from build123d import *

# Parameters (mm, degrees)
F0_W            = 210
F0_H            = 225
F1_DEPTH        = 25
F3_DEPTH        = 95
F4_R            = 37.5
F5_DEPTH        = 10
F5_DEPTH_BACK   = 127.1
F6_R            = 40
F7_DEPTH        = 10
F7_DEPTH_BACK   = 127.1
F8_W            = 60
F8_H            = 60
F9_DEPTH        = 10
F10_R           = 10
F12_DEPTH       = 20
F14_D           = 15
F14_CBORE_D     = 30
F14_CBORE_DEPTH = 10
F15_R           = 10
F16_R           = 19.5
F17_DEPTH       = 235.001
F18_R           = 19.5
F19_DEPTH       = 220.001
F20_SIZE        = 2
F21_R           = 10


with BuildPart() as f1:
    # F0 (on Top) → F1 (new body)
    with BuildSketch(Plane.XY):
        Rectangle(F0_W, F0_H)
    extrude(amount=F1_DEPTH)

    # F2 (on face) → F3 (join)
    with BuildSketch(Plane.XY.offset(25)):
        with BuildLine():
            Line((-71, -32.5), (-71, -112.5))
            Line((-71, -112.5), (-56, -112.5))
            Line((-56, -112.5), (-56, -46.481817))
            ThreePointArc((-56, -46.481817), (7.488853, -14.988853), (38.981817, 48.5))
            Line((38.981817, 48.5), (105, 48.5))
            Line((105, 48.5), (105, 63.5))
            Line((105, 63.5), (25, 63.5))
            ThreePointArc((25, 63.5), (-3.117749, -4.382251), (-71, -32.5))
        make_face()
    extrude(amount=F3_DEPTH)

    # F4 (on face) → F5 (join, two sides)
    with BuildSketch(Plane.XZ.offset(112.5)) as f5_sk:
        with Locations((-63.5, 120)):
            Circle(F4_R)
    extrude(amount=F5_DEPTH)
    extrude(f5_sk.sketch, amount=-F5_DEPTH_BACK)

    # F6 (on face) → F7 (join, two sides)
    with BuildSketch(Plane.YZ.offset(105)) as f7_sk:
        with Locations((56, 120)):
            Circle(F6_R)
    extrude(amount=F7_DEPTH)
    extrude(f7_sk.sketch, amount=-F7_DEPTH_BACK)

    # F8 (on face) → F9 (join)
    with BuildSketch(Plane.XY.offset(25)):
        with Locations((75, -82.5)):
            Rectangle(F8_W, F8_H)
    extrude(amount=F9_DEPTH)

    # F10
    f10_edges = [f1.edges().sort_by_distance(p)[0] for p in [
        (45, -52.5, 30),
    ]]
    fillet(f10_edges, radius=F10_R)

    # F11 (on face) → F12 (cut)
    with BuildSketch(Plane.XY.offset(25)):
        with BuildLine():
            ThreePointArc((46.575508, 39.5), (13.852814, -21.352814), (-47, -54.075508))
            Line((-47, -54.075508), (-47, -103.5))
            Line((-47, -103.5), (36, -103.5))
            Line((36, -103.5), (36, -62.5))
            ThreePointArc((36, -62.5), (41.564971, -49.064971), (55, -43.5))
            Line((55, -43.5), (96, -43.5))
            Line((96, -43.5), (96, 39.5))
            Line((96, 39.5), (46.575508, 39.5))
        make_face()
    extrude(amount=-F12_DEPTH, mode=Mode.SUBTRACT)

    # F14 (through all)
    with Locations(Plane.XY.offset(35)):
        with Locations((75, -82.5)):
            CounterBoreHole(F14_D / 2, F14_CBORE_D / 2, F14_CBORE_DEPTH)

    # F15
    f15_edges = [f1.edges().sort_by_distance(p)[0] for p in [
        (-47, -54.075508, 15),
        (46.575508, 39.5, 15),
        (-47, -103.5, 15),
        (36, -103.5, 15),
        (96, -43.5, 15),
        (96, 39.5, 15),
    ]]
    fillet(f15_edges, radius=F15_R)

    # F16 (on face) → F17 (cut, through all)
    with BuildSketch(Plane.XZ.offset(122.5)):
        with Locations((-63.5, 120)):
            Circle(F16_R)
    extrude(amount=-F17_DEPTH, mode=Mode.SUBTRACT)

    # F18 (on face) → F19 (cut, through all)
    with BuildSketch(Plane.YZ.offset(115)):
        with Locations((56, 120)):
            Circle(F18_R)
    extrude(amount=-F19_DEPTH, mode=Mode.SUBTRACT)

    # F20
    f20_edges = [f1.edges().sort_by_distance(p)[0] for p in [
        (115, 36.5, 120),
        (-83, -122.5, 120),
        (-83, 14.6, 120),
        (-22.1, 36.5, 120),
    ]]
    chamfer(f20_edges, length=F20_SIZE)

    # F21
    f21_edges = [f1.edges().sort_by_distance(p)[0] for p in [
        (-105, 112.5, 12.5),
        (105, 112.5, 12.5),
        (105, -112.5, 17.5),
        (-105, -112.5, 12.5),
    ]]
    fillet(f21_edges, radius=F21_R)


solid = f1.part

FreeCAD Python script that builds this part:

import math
import FreeCAD as App
import Part
import Sketcher

V = App.Vector


def edges_at(feature, points):
    """Names of the edges that pass closest to the given points."""
    edges = feature.Shape.Edges
    near = lambda p: min(range(len(edges)), key=lambda i: edges[i].distToShape(Part.Vertex(*p))[0])
    return sorted({f"Edge{near(p) + 1}" for p in points})

doc = App.newDocument("Part")
body = doc.addObject("PartDesign::Body", "Body")

# Sketch on XY plane
sketch1 = body.newObject("Sketcher::SketchObject", "Sketch")
sketch1.AttachmentSupport = (doc.getObject("XY_Plane"), [""])
sketch1.MapMode = "FlatFace"
sketch1.addGeometry(Part.LineSegment(V(-105, 112, 0), V(-105, -112, 0)), False)
sketch1.addGeometry(Part.LineSegment(V(-105, -112, 0), V(105, -112, 0)), False)
sketch1.addGeometry(Part.LineSegment(V(105, -112, 0), V(105, 112, 0)), False)
sketch1.addGeometry(Part.LineSegment(V(105, 112, 0), V(-105, 112, 0)), False)
sketch1.addConstraint(Sketcher.Constraint("Coincident", 0, 2, 1, 1))
sketch1.addConstraint(Sketcher.Constraint("Coincident", 1, 2, 2, 1))
sketch1.addConstraint(Sketcher.Constraint("Coincident", 2, 2, 3, 1))
sketch1.addConstraint(Sketcher.Constraint("Coincident", 3, 2, 0, 1))
sketch1.addConstraint(Sketcher.Constraint("Vertical", 0))
sketch1.addConstraint(Sketcher.Constraint("Horizontal", 1))
sketch1.addConstraint(Sketcher.Constraint("Vertical", 2))
sketch1.addConstraint(Sketcher.Constraint("Horizontal", 3))
sketch1.addConstraint(Sketcher.Constraint("Symmetric", 0, 2, 2, 2, -1, 1))
sketch1.addConstraint(Sketcher.Constraint("DistanceX", 1, 1, 1, 2, 210.0))
sketch1.addConstraint(Sketcher.Constraint("DistanceY", 0, 2, 0, 1, 225.0))
pad1 = body.newObject("PartDesign::Pad", "Pad")
pad1.Profile = sketch1
pad1.Length = 25

# Sketch on XY plane
sketch2 = body.newObject("Sketcher::SketchObject", "Sketch001")
sketch2.AttachmentSupport = (doc.getObject("XY_Plane"), [""])
sketch2.MapMode = "FlatFace"
sketch2.AttachmentOffset = App.Placement(V(0, 0, 25), App.Rotation())
sketch2.addGeometry(Part.LineSegment(V(-71, -32, 0), V(-71, -112, 0)), False)
sketch2.addGeometry(Part.LineSegment(V(-71, -112, 0), V(-56, -112, 0)), False)
sketch2.addGeometry(Part.LineSegment(V(-56, -112, 0), V(-56, -46, 0)), False)
sketch2.addGeometry(Part.ArcOfCircle(Part.Circle(V(-71, 63, 0), V(0, 0, 1), 111), math.radians(-82), math.radians(-8)), False)
sketch2.addGeometry(Part.LineSegment(V(39, 48, 0), V(105, 48, 0)), False)
sketch2.addGeometry(Part.LineSegment(V(105, 48, 0), V(105, 64, 0)), False)
sketch2.addGeometry(Part.LineSegment(V(105, 64, 0), V(25, 64, 0)), False)
sketch2.addGeometry(Part.ArcOfCircle(Part.Circle(V(-71, 63, 0), V(0, 0, 1), 96), math.radians(-90), math.radians(0)), False)
sketch2.addConstraint(Sketcher.Constraint("Coincident", 0, 2, 1, 1))
sketch2.addConstraint(Sketcher.Constraint("Coincident", 1, 2, 2, 1))
sketch2.addConstraint(Sketcher.Constraint("Coincident", 2, 2, 3, 1))
sketch2.addConstraint(Sketcher.Constraint("Coincident", 3, 2, 4, 1))
sketch2.addConstraint(Sketcher.Constraint("Coincident", 4, 2, 5, 1))
sketch2.addConstraint(Sketcher.Constraint("Coincident", 5, 2, 6, 1))
sketch2.addConstraint(Sketcher.Constraint("Coincident", 6, 2, 7, 2))
sketch2.addConstraint(Sketcher.Constraint("Coincident", 7, 1, 0, 1))
sketch2.addConstraint(Sketcher.Constraint("Vertical", 0))
sketch2.addConstraint(Sketcher.Constraint("Horizontal", 1))
sketch2.addConstraint(Sketcher.Constraint("Vertical", 2))
sketch2.addConstraint(Sketcher.Constraint("Horizontal", 4))
sketch2.addConstraint(Sketcher.Constraint("Vertical", 5))
sketch2.addConstraint(Sketcher.Constraint("Horizontal", 6))
sketch2.addConstraint(Sketcher.Constraint("Coincident", 7, 3, 3, 3))
sketch2.addConstraint(Sketcher.Constraint("Horizontal", 7, 3, 5, 2))
sketch2.addConstraint(Sketcher.Constraint("Vertical", 7, 3, 0, 2))
sketch2.addConstraint(Sketcher.Constraint("Equal", 6, 0))
sketch2.addConstraint(Sketcher.Constraint("Equal", 4, 2))
sketch2.addConstraint(Sketcher.Constraint("Radius", 3, 111.0))
sketch2.addConstraint(Sketcher.Constraint("Radius", 7, 96.0))
sketch2.addConstraint(Sketcher.Constraint("DistanceX", 1, 1, 1, 2, 15.0))
sketch2.addConstraint(Sketcher.Constraint("DistanceX", 6, 2, 6, 1, 80.0))
sketch2.addConstraint(Sketcher.Constraint("DistanceX", 3, 3, -1, 1, 71.0))
sketch2.addConstraint(Sketcher.Constraint("DistanceY", -1, 1, 3, 3, 63.5))
pad2 = body.newObject("PartDesign::Pad", "Pad001")
pad2.Profile = sketch2
pad2.Length = 95

# Sketch on XZ plane
sketch3 = body.newObject("Sketcher::SketchObject", "Sketch002")
sketch3.AttachmentSupport = (doc.getObject("XZ_Plane"), [""])
sketch3.MapMode = "FlatFace"
sketch3.AttachmentOffset = App.Placement(V(0, 0, 112.5), App.Rotation())
sketch3.addGeometry(Part.Circle(V(-64, 120, 0), V(0, 0, 1), 38), False)
sketch3.addConstraint(Sketcher.Constraint("Diameter", 0, 75.0))
sketch3.addConstraint(Sketcher.Constraint("DistanceY", -1, 1, 0, 3, 120.0))
sketch3.addConstraint(Sketcher.Constraint("DistanceX", 0, 3, -1, 1, 63.5))
pad3 = body.newObject("PartDesign::Pad", "Pad002")
pad3.Profile = sketch3
pad3.Type = "TwoLengths"
pad3.Length = 10
pad3.Length2 = 127.1

# Sketch on YZ plane
sketch4 = body.newObject("Sketcher::SketchObject", "Sketch003")
sketch4.AttachmentSupport = (doc.getObject("YZ_Plane"), [""])
sketch4.MapMode = "FlatFace"
sketch4.AttachmentOffset = App.Placement(V(0, 0, 105), App.Rotation())
sketch4.addGeometry(Part.Circle(V(56, 120, 0), V(0, 0, 1), 40), False)
sketch4.addConstraint(Sketcher.Constraint("Diameter", 0, 80.0))
sketch4.addConstraint(Sketcher.Constraint("DistanceX", -1, 1, 0, 3, 56.0))
sketch4.addConstraint(Sketcher.Constraint("DistanceY", -1, 1, 0, 3, 120.0))
pad4 = body.newObject("PartDesign::Pad", "Pad003")
pad4.Profile = sketch4
pad4.Type = "TwoLengths"
pad4.Length = 10
pad4.Length2 = 127.1

# Sketch on XY plane
sketch5 = body.newObject("Sketcher::SketchObject", "Sketch004")
sketch5.AttachmentSupport = (doc.getObject("XY_Plane"), [""])
sketch5.MapMode = "FlatFace"
sketch5.AttachmentOffset = App.Placement(V(0, 0, 25), App.Rotation())
sketch5.addGeometry(Part.LineSegment(V(45, -52, 0), V(45, -112, 0)), False)
sketch5.addGeometry(Part.LineSegment(V(45, -112, 0), V(105, -112, 0)), False)
sketch5.addGeometry(Part.LineSegment(V(105, -112, 0), V(105, -52, 0)), False)
sketch5.addGeometry(Part.LineSegment(V(105, -52, 0), V(45, -52, 0)), False)
sketch5.addConstraint(Sketcher.Constraint("Coincident", 0, 2, 1, 1))
sketch5.addConstraint(Sketcher.Constraint("Coincident", 1, 2, 2, 1))
sketch5.addConstraint(Sketcher.Constraint("Coincident", 2, 2, 3, 1))
sketch5.addConstraint(Sketcher.Constraint("Coincident", 3, 2, 0, 1))
sketch5.addConstraint(Sketcher.Constraint("Vertical", 0))
sketch5.addConstraint(Sketcher.Constraint("Horizontal", 1))
sketch5.addConstraint(Sketcher.Constraint("Vertical", 2))
sketch5.addConstraint(Sketcher.Constraint("Horizontal", 3))
sketch5.addConstraint(Sketcher.Constraint("Equal", 3, 0))
sketch5.addConstraint(Sketcher.Constraint("DistanceX", 1, 1, 1, 2, 60.0))
sketch5.addConstraint(Sketcher.Constraint("DistanceX", -1, 1, 0, 2, 45.0))
sketch5.addConstraint(Sketcher.Constraint("DistanceY", 0, 2, -1, 1, 112.5))
pad5 = body.newObject("PartDesign::Pad", "Pad004")
pad5.Profile = sketch5
pad5.Length = 10
doc.recompute()

fillet = body.newObject("PartDesign::Fillet", "Fillet")
fillet.Base = (pad5, edges_at(pad5, [(45, -52.5, 30)]))
fillet.Radius = 10

# Sketch on XY plane
sketch6 = body.newObject("Sketcher::SketchObject", "Sketch005")
sketch6.AttachmentSupport = (doc.getObject("XY_Plane"), [""])
sketch6.MapMode = "FlatFace"
sketch6.AttachmentOffset = App.Placement(V(0, 0, 25), App.Rotation())
sketch6.addGeometry(Part.ArcOfCircle(Part.Circle(V(-71, 63, 0), V(0, 0, 1), 120), math.radians(-78), math.radians(-12)), False)
sketch6.addGeometry(Part.LineSegment(V(-47, -54, 0), V(-47, -104, 0)), False)
sketch6.addGeometry(Part.LineSegment(V(-47, -104, 0), V(36, -104, 0)), False)
sketch6.addGeometry(Part.LineSegment(V(36, -104, 0), V(36, -62, 0)), False)
sketch6.addGeometry(Part.ArcOfCircle(Part.Circle(V(55, -62, 0), V(0, 0, 1), 19), math.radians(90), math.radians(180)), False)
sketch6.addGeometry(Part.LineSegment(V(55, -44, 0), V(96, -44, 0)), False)
sketch6.addGeometry(Part.LineSegment(V(96, -44, 0), V(96, 40, 0)), False)
sketch6.addGeometry(Part.LineSegment(V(96, 40, 0), V(47, 40, 0)), False)
sketch6.addConstraint(Sketcher.Constraint("Coincident", 0, 1, 1, 1))
sketch6.addConstraint(Sketcher.Constraint("Coincident", 1, 2, 2, 1))
sketch6.addConstraint(Sketcher.Constraint("Coincident", 2, 2, 3, 1))
sketch6.addConstraint(Sketcher.Constraint("Tangent", 3, 2, 4, 2))
sketch6.addConstraint(Sketcher.Constraint("Tangent", 4, 1, 5, 1))
sketch6.addConstraint(Sketcher.Constraint("Coincident", 5, 2, 6, 1))
sketch6.addConstraint(Sketcher.Constraint("Coincident", 6, 2, 7, 1))
sketch6.addConstraint(Sketcher.Constraint("Coincident", 7, 2, 0, 2))
sketch6.addConstraint(Sketcher.Constraint("Vertical", 1))
sketch6.addConstraint(Sketcher.Constraint("Horizontal", 2))
sketch6.addConstraint(Sketcher.Constraint("Vertical", 3))
sketch6.addConstraint(Sketcher.Constraint("Horizontal", 5))
sketch6.addConstraint(Sketcher.Constraint("Vertical", 6))
sketch6.addConstraint(Sketcher.Constraint("Horizontal", 7))
sketch6.addConstraint(Sketcher.Constraint("Equal", 7, 1))
sketch6.addConstraint(Sketcher.Constraint("Equal", 5, 3))
sketch6.addConstraint(Sketcher.Constraint("Equal", 2, 6))
sketch6.addConstraint(Sketcher.Constraint("Radius", 0, 120.0))
sketch6.addConstraint(Sketcher.Constraint("Radius", 4, 18.999999))
sketch6.addConstraint(Sketcher.Constraint("DistanceX", 2, 1, 2, 2, 83.0))
sketch6.addConstraint(Sketcher.Constraint("DistanceX", 5, 1, 5, 2, 41.0))
sketch6.addConstraint(Sketcher.Constraint("DistanceX", 0, 3, -1, 1, 71.0))
sketch6.addConstraint(Sketcher.Constraint("DistanceX", -1, 1, 4, 3, 54.999999))
sketch6.addConstraint(Sketcher.Constraint("DistanceY", -1, 1, 0, 3, 63.5))
pocket1 = body.newObject("PartDesign::Pocket", "Pocket")
pocket1.Profile = sketch6
pocket1.Length = 20

# Sketch on XY plane
sketch7 = body.newObject("Sketcher::SketchObject", "Sketch006")
sketch7.AttachmentSupport = (doc.getObject("XY_Plane"), [""])
sketch7.MapMode = "FlatFace"
sketch7.AttachmentOffset = App.Placement(V(0, 0, 35), App.Rotation())
sketch7.addGeometry(Part.Circle(V(75, -82, 0), V(0, 0, 1), 8), False)
sketch7.addConstraint(Sketcher.Constraint("Diameter", 0, 15.0))
sketch7.addConstraint(Sketcher.Constraint("DistanceX", -1, 1, 0, 3, 75.0))
sketch7.addConstraint(Sketcher.Constraint("DistanceY", 0, 3, -1, 1, 82.5))
doc.recompute()
hole = body.newObject("PartDesign::Hole", "Hole")
hole.Profile = sketch7
hole.ThreadType = "None"
hole.Diameter = 15
hole.DepthType = "ThroughAll"
hole.HoleCutType = "Counterbore"
hole.HoleCutDiameter = 30
hole.HoleCutDepth = 10
doc.recompute()

fillet2 = body.newObject("PartDesign::Fillet", "Fillet001")
fillet2.Base = (hole, edges_at(hole, [
    (-47, -54.076, 15),
    (46.576, 39.5, 15),
    (-47, -103.5, 15),
    (36, -103.5, 15),
    (96, -43.5, 15),
    (96, 39.5, 15),
]))
fillet2.Radius = 10

# Sketch on XZ plane
sketch8 = body.newObject("Sketcher::SketchObject", "Sketch007")
sketch8.AttachmentSupport = (doc.getObject("XZ_Plane"), [""])
sketch8.MapMode = "FlatFace"
sketch8.AttachmentOffset = App.Placement(V(0, 0, 122.5), App.Rotation())
sketch8.addGeometry(Part.Circle(V(-64, 120, 0), V(0, 0, 1), 20), False)
sketch8.addConstraint(Sketcher.Constraint("Diameter", 0, 39.0))
sketch8.addConstraint(Sketcher.Constraint("DistanceY", -1, 1, 0, 3, 120.0))
sketch8.addConstraint(Sketcher.Constraint("DistanceX", 0, 3, -1, 1, 63.5))
pocket2 = body.newObject("PartDesign::Pocket", "Pocket001")
pocket2.Profile = sketch8
pocket2.Type = "ThroughAll"

# Sketch on YZ plane
sketch9 = body.newObject("Sketcher::SketchObject", "Sketch008")
sketch9.AttachmentSupport = (doc.getObject("YZ_Plane"), [""])
sketch9.MapMode = "FlatFace"
sketch9.AttachmentOffset = App.Placement(V(0, 0, 115), App.Rotation())
sketch9.addGeometry(Part.Circle(V(56, 120, 0), V(0, 0, 1), 20), False)
sketch9.addConstraint(Sketcher.Constraint("Diameter", 0, 39.0))
sketch9.addConstraint(Sketcher.Constraint("DistanceX", -1, 1, 0, 3, 56.0))
sketch9.addConstraint(Sketcher.Constraint("DistanceY", -1, 1, 0, 3, 120.0))
pocket3 = body.newObject("PartDesign::Pocket", "Pocket002")
pocket3.Profile = sketch9
pocket3.Type = "ThroughAll"
doc.recompute()

chamfer = body.newObject("PartDesign::Chamfer", "Chamfer")
chamfer.Base = (pocket3, edges_at(pocket3, [
    (115, 36.5, 120),
    (-83, -122.5, 120),
    (-83, 14.6, 120),
    (-22.1, 36.5, 120),
]))
chamfer.Size = 2
doc.recompute()

fillet3 = body.newObject("PartDesign::Fillet", "Fillet002")
fillet3.Base = (chamfer, edges_at(chamfer, [
    (-105, 112.5, 12.5),
    (105, 112.5, 12.5),
    (105, -112.5, 17.5),
    (-105, -112.5, 12.5),
]))
fillet3.Radius = 10

doc.recompute()
